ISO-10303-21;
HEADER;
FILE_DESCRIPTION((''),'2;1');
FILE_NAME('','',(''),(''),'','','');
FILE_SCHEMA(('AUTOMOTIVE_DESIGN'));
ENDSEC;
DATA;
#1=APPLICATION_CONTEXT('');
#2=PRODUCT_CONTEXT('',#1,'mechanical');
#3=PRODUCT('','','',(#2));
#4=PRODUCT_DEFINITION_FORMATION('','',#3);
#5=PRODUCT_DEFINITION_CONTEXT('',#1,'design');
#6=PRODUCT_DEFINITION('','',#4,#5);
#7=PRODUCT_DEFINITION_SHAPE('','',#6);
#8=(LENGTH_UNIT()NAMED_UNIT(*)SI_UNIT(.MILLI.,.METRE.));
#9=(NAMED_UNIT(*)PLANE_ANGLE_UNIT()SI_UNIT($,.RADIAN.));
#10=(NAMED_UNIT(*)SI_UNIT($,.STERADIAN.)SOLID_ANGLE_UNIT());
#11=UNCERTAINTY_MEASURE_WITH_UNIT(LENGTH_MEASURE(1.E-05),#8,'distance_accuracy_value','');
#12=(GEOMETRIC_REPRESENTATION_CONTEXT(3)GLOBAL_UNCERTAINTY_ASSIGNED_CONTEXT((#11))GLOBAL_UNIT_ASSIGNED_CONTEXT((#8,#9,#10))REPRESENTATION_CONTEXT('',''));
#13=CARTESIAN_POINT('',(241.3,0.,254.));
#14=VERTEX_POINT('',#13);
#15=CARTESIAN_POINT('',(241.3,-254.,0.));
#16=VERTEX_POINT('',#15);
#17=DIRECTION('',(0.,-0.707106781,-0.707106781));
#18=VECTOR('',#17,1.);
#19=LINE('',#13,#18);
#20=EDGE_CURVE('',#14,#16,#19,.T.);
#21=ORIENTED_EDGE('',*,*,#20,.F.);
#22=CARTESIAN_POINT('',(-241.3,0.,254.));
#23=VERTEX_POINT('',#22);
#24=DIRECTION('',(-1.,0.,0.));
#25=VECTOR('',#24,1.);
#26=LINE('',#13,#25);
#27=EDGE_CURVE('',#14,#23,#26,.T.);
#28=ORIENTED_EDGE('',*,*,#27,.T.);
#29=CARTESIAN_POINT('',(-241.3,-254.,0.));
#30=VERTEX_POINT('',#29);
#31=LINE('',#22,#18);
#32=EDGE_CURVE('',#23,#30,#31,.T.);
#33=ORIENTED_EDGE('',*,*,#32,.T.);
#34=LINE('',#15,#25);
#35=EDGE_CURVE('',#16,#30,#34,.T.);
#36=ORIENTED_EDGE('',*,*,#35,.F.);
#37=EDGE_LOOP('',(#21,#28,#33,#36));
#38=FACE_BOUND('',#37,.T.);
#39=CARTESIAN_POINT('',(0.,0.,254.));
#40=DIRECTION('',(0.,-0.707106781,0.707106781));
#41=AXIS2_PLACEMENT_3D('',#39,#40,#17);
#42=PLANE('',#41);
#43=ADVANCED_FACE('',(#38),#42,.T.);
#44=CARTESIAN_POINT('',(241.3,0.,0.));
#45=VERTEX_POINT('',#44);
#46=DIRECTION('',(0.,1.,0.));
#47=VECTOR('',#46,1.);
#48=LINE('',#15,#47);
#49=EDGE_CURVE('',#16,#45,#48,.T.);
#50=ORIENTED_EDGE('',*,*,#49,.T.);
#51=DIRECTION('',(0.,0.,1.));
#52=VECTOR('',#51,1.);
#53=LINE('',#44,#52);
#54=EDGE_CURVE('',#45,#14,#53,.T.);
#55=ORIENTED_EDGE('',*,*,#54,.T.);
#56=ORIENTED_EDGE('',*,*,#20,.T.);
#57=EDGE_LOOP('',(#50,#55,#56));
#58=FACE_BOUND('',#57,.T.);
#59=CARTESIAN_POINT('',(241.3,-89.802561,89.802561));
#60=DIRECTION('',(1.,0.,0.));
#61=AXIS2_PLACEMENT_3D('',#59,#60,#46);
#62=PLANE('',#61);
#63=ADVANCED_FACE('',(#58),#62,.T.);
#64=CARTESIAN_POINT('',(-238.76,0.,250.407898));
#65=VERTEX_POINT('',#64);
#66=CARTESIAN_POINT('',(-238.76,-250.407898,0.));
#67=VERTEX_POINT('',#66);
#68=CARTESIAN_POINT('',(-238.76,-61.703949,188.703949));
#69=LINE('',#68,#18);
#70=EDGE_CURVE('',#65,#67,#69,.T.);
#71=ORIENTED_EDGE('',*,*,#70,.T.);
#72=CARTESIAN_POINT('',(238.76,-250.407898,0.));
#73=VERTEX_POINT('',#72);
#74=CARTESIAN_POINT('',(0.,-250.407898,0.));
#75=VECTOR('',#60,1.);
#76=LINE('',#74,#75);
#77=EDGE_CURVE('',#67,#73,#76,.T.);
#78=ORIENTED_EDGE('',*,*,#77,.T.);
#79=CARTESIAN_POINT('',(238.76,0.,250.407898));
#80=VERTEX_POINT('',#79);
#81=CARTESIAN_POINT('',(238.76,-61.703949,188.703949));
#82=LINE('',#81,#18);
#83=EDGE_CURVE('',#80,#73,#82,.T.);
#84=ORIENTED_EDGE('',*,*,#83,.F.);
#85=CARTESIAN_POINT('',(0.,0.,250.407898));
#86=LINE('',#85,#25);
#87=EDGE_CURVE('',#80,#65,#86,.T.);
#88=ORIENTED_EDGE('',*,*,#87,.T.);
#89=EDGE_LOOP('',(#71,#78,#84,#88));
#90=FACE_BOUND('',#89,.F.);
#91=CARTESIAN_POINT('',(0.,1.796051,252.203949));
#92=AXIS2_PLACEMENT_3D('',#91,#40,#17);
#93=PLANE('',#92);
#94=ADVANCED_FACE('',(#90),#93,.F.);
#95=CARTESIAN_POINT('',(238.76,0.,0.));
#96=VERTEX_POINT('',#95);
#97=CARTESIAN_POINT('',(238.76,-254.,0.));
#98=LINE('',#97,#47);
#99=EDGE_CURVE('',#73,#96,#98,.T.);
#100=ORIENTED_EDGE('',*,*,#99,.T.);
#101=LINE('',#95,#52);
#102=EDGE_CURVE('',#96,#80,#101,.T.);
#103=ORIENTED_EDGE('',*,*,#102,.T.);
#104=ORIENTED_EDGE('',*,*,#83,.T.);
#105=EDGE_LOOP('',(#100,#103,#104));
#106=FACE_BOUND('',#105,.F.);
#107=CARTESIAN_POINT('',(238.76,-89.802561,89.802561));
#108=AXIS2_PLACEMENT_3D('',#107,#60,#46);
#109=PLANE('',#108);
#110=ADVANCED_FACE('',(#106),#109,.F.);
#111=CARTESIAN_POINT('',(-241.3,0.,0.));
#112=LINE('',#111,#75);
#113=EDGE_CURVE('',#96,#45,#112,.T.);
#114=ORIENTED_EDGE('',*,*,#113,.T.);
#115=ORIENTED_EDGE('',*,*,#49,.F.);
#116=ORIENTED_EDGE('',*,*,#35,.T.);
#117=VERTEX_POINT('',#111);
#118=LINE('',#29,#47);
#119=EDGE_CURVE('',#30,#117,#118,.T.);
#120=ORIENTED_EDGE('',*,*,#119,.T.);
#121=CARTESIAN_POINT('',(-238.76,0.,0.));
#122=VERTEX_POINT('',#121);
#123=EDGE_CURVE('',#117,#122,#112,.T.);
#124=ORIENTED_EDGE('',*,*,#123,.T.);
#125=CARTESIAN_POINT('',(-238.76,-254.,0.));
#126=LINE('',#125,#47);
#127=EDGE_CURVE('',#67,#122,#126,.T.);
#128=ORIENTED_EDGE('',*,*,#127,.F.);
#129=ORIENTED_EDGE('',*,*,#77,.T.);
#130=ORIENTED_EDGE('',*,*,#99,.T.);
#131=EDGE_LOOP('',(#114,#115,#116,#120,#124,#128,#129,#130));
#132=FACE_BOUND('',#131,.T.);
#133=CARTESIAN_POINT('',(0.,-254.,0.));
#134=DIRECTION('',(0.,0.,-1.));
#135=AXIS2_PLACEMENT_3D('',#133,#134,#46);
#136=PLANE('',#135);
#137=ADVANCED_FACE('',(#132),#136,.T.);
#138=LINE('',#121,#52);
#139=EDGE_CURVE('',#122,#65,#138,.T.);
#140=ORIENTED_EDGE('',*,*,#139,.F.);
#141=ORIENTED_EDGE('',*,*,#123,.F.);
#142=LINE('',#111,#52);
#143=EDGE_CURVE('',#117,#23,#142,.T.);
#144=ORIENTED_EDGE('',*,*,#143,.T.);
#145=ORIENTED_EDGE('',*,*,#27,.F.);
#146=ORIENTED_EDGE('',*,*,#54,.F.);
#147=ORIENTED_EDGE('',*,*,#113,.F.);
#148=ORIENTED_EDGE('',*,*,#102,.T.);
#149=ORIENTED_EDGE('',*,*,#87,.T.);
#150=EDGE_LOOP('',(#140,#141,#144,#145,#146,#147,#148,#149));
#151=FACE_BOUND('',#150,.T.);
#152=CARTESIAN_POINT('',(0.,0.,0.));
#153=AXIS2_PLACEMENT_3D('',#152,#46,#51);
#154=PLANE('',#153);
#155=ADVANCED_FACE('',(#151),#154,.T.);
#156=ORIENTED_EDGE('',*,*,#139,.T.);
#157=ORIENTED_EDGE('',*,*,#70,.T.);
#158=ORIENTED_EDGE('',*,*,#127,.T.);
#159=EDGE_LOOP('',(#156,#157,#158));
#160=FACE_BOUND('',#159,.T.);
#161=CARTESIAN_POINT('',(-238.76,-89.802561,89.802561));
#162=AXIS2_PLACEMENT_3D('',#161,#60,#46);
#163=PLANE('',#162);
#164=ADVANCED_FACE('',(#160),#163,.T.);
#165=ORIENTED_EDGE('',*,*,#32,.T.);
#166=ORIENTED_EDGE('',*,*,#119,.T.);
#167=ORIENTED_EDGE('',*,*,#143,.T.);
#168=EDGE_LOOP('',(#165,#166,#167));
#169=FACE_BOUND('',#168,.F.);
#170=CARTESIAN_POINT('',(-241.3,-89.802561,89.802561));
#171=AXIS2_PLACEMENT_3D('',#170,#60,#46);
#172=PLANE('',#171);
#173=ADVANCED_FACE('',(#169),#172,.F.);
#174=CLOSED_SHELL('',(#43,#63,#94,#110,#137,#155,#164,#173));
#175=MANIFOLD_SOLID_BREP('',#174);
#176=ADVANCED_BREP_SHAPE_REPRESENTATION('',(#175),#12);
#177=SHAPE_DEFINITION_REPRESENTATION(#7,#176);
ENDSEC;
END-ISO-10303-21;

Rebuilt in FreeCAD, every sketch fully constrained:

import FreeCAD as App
import Part
import Sketcher
Q = App.Units.Quantity


def faces_at(feature, points):
    """Names of the faces that lie closest to the given points."""
    faces = feature.Shape.Faces
    near = lambda p: min(range(len(faces)), key=lambda i: faces[i].distToShape(Part.Vertex(*p))[0])
    return sorted({f"Face{near(p) + 1}" for p in points})


def add_polygon(sketch, points):
    """Adds a closed chain of lines whose ends are joined by coincident constraints."""
    first, n = sketch.GeometryCount, len(points)
    for a, b in zip(points, points[1:] + points[:1]):
        sketch.addGeometry(Part.LineSegment(App.Vector(*a, 0), App.Vector(*b, 0)), False)
    for i in range(n):
        sketch.addConstraint(Sketcher.Constraint("Coincident", first + i, 2, first + (i + 1) % n, 1))

doc = App.newDocument("Part")
body = doc.addObject("PartDesign::Body", "Body")

# Sketch on YZ plane
sketch1 = doc.addObject("Sketcher::SketchObject", "Sketch")
body.addObject(sketch1)
sketch1.AttachmentSupport = (doc.YZ_Plane, [""])
sketch1.MapMode = "FlatFace"
add_polygon(sketch1, [(-254, 0), (0, 0), (0, 254)])  # lines 0-2
sketch1.addConstraint([
    Sketcher.Constraint("Horizontal", 0),
    Sketcher.Constraint("Vertical", 1),
    Sketcher.Constraint("Coincident", 0, 2, -1, 1),
    Sketcher.Constraint("Equal", 0, 1),
    Sketcher.Constraint("DistanceX", 0, 1, 0, 2, Q("10 in")),
])
pad1 = doc.addObject("PartDesign::Pad", "Pad")
body.addObject(pad1)
pad1.Profile = sketch1
pad1.Length = Q("19 in")
pad1.Midplane = True
doc.recompute()

thickness = doc.addObject("PartDesign::Thickness", "Thickness")
body.addObject(thickness)
thickness.Base = (pad1, faces_at(pad1, [(0, 0, 127), (0, -127, 0)]))
thickness.Value = Q("0.1 in")
thickness.Reversed = True
thickness.Join = "Arc"

doc.recompute()
